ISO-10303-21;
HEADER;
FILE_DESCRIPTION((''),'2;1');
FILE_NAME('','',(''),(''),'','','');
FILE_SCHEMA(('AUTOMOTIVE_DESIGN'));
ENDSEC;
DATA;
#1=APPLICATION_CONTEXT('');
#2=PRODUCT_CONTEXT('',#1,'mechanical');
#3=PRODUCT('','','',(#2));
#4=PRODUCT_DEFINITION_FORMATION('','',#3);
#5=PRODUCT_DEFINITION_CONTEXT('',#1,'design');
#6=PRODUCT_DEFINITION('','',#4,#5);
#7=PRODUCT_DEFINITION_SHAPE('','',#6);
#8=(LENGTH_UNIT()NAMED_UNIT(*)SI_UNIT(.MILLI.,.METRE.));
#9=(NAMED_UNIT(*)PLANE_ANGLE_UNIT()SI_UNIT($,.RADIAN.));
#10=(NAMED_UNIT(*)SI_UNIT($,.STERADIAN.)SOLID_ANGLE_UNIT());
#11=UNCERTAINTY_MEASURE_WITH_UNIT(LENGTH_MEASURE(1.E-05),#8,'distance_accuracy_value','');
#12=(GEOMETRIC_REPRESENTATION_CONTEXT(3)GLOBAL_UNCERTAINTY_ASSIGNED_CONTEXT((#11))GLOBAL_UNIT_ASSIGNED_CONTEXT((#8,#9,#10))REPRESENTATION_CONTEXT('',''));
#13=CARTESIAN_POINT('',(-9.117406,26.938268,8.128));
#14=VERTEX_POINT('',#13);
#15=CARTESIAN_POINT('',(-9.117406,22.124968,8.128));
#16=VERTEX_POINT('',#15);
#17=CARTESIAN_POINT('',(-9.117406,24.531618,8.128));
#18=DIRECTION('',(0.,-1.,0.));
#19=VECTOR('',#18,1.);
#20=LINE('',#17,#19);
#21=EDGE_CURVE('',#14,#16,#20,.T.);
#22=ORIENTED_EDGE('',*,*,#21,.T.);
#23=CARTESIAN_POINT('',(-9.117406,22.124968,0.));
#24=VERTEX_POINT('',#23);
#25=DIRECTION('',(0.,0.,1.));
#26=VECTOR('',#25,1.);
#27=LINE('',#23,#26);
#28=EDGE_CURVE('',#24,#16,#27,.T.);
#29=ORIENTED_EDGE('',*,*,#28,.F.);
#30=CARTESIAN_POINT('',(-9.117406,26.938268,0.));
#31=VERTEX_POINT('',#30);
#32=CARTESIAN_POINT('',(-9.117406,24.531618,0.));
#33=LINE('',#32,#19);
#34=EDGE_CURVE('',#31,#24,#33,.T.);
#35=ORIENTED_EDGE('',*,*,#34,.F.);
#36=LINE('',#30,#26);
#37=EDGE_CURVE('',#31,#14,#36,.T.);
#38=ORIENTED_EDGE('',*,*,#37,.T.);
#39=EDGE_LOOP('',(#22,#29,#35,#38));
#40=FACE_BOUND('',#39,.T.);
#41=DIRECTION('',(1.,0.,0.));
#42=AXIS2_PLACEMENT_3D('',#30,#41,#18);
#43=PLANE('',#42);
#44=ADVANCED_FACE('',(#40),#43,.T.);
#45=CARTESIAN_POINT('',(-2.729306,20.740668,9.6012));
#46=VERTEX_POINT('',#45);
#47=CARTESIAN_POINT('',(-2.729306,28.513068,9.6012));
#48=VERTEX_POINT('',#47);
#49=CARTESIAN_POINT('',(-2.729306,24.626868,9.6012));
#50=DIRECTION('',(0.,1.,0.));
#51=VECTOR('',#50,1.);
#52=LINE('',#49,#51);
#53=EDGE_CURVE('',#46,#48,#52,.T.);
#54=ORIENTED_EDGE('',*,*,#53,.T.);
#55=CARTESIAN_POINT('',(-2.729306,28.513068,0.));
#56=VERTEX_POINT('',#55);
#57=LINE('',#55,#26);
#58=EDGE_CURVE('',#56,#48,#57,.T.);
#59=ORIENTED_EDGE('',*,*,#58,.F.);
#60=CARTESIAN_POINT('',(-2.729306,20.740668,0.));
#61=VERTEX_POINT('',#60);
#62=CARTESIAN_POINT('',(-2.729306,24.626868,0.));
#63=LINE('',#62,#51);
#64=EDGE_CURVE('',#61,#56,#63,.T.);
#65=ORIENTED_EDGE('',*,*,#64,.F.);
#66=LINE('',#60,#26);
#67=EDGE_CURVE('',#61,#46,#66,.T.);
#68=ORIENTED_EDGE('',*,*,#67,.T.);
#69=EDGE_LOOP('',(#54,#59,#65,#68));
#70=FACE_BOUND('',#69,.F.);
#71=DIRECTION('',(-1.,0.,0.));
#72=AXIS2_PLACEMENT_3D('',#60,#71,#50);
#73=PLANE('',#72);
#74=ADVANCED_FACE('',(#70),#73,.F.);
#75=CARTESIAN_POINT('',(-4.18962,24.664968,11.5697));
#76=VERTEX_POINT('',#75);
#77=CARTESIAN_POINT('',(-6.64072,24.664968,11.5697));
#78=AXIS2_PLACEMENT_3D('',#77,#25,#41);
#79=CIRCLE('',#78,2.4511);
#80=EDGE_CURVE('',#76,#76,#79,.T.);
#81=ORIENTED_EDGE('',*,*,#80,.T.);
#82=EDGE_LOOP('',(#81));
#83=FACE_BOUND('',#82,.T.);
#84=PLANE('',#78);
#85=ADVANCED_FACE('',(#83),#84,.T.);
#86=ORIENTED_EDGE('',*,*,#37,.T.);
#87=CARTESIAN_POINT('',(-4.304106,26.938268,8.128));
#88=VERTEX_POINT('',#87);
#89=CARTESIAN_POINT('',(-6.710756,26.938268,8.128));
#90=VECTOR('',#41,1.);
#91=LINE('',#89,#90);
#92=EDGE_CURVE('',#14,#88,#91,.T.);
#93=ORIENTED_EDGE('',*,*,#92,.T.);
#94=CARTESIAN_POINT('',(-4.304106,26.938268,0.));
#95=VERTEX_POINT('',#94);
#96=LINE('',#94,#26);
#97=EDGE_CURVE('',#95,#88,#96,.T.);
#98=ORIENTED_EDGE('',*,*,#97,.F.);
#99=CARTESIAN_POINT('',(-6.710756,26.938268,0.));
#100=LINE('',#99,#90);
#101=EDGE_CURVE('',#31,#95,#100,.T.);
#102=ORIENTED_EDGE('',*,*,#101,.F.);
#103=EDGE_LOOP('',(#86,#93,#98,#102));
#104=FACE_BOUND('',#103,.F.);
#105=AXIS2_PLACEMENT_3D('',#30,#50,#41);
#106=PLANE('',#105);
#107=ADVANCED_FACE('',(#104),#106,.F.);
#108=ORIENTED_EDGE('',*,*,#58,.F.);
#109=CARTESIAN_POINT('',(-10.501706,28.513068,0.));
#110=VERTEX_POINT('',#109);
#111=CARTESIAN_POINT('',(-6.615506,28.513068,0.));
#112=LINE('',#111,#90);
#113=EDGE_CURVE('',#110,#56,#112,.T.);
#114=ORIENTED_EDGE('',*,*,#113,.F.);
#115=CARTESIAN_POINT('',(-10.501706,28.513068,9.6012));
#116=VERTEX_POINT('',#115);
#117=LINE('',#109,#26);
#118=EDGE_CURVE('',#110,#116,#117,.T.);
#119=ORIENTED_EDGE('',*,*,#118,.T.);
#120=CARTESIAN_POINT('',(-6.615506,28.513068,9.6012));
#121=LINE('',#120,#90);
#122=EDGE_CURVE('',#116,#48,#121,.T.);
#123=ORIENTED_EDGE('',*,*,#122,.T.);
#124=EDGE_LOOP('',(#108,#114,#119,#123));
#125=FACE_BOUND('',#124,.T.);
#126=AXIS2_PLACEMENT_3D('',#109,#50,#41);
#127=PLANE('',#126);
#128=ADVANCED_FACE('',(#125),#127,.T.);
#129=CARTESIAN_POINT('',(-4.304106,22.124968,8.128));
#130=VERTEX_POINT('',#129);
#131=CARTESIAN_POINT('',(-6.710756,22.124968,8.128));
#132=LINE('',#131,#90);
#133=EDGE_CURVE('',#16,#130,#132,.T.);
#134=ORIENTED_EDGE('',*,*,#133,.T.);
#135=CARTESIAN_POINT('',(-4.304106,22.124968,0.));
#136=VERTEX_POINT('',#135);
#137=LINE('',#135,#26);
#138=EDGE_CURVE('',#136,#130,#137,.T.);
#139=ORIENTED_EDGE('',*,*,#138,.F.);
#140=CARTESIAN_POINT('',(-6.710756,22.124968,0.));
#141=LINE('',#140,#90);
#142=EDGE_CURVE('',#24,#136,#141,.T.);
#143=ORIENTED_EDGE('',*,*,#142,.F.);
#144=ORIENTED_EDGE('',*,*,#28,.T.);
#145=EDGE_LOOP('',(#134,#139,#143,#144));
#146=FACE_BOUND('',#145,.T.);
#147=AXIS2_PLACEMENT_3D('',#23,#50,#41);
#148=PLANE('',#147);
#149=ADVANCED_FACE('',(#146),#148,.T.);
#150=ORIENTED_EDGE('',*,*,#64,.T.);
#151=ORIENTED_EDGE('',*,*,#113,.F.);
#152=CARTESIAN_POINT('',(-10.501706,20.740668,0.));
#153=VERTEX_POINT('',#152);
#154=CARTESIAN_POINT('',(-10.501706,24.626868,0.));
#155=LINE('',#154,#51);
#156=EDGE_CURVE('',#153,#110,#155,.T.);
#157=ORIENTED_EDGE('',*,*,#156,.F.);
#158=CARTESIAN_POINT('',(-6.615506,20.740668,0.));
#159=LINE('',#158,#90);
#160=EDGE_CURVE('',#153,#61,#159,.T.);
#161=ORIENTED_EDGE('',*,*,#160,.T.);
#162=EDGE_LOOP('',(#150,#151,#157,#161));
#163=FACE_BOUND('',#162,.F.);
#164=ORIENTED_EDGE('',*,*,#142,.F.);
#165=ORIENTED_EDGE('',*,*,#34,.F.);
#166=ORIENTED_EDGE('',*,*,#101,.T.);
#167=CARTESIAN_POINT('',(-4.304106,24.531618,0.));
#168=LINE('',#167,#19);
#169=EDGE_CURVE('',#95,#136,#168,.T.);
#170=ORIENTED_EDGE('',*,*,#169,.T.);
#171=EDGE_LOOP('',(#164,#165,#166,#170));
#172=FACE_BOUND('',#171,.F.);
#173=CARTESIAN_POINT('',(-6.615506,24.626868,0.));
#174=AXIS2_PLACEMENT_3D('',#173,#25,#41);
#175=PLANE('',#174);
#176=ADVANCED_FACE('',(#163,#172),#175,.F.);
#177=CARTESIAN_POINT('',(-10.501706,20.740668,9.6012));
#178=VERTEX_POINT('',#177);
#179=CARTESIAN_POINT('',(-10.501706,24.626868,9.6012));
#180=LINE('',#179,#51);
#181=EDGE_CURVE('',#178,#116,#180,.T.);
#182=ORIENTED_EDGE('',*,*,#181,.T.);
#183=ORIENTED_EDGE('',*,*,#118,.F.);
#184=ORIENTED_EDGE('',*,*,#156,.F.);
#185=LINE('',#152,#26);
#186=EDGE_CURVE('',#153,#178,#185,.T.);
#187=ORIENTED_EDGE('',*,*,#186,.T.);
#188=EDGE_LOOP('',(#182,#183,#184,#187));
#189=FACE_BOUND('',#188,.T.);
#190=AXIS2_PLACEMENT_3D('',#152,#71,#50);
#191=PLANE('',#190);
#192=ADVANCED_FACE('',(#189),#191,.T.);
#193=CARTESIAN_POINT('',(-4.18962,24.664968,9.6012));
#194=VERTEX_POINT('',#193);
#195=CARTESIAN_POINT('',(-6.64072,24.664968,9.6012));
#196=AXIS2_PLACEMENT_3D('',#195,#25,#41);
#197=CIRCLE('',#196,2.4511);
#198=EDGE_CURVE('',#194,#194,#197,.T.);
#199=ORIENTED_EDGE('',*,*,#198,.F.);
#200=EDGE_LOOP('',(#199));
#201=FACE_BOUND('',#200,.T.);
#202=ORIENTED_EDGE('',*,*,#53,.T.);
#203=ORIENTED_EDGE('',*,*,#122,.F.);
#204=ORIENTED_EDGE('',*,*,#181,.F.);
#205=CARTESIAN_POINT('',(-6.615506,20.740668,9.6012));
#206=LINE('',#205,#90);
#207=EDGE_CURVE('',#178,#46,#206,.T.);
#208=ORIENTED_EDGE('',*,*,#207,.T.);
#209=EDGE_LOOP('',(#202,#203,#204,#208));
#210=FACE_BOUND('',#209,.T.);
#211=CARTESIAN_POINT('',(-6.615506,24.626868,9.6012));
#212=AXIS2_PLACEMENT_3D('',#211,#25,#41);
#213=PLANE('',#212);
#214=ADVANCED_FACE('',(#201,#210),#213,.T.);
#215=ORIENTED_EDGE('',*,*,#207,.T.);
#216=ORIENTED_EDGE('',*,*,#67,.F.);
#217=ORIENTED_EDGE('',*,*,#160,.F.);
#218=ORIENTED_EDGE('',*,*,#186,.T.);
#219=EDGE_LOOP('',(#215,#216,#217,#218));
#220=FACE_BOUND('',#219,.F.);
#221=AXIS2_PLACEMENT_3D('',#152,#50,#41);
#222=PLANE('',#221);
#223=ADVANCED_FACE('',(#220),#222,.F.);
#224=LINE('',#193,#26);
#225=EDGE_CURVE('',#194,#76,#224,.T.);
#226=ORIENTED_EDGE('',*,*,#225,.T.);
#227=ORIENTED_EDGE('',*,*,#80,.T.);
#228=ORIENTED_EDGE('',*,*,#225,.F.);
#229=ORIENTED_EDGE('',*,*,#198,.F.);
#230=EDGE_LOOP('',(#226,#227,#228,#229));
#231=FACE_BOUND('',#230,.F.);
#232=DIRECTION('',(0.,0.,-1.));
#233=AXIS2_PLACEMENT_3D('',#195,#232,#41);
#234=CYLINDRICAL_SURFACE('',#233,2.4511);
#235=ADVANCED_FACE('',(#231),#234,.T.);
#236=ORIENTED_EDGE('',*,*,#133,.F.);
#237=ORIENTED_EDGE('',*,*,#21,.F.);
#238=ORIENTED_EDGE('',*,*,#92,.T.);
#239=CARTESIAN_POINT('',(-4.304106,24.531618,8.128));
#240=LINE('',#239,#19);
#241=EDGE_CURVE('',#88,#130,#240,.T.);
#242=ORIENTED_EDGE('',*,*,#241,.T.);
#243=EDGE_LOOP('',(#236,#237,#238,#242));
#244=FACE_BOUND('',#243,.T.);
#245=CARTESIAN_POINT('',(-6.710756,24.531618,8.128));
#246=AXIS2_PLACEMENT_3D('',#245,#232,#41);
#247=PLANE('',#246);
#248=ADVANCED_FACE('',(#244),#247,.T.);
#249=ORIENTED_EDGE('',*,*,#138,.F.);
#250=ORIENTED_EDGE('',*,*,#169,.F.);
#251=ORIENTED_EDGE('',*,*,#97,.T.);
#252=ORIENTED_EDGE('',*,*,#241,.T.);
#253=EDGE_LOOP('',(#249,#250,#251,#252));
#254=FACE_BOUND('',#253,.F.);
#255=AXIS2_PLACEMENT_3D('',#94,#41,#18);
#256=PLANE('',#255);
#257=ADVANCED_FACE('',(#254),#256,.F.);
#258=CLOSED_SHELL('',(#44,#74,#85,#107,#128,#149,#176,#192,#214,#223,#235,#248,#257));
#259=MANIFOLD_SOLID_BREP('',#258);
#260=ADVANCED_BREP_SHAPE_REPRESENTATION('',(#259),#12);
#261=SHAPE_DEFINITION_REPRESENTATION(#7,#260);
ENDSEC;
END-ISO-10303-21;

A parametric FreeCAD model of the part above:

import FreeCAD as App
import Part
import Sketcher
Q = App.Units.Quantity

doc = App.newDocument("Part")
body = doc.addObject("PartDesign::Body", "Body")

sketch1 = body.newObject("Sketcher::SketchObject", "Sketch")
sketch1.AttachmentSupport = (doc.getObject("XY_Plane"), [""])
sketch1.MapMode = "FlatFace"
sketch1.addGeometry(Part.LineSegment(App.Vector(-11, 29, 0), App.Vector(-11, 21, 0)), False)
sketch1.addGeometry(Part.LineSegment(App.Vector(-11, 21, 0), App.Vector(-3, 21, 0)), False)
sketch1.addGeometry(Part.LineSegment(App.Vector(-3, 21, 0), App.Vector(-3, 29, 0)), False)
sketch1.addGeometry(Part.LineSegment(App.Vector(-3, 29, 0), App.Vector(-11, 29, 0)), False)
sketch1.addConstraint(Sketcher.Constraint("Coincident", 0, 2, 1, 1))
sketch1.addConstraint(Sketcher.Constraint("Coincident", 1, 2, 2, 1))
sketch1.addConstraint(Sketcher.Constraint("Coincident", 2, 2, 3, 1))
sketch1.addConstraint(Sketcher.Constraint("Coincident", 3, 2, 0, 1))
sketch1.addConstraint(Sketcher.Constraint("Vertical", 0))
sketch1.addConstraint(Sketcher.Constraint("Horizontal", 1))
sketch1.addConstraint(Sketcher.Constraint("Vertical", 2))
sketch1.addConstraint(Sketcher.Constraint("Horizontal", 3))
sketch1.addConstraint(Sketcher.Constraint("Equal", 3, 0))
sketch1.addConstraint(Sketcher.Constraint("DistanceX", 1, 1, 1, 2, Q("0.306 in")))
sketch1.addConstraint(Sketcher.Constraint("DistanceY", -1, 1, 2, 2, 28.513068))
sketch1.addConstraint(Sketcher.Constraint("DistanceX", 0, 2, -1, 1, 10.501706))
pad1 = body.newObject("PartDesign::Pad", "Pad")
pad1.Profile = sketch1
pad1.Length = Q("0.378 in")

sketch2 = body.newObject("Sketcher::SketchObject", "Sketch001")
sketch2.AttachmentSupport = (doc.getObject("XY_Plane"), [""])
sketch2.MapMode = "FlatFace"
sketch2.AttachmentOffset = App.Placement(App.Vector(0, 0, 0.378 * 25.4), App.Rotation())
sketch2.addGeometry(Part.Circle(App.Vector(-6.6, 24.7, 0), App.Vector(0, 0, 1), 2.5), False)
sketch2.addConstraint(Sketcher.Constraint("Diameter", 0, Q("0.193 in")))
sketch2.addConstraint(Sketcher.Constraint("DistanceX", 0, 3, -1, 1, 6.64072))
sketch2.addConstraint(Sketcher.Constraint("DistanceY", -1, 1, 0, 3, 24.664968))
pad2 = body.newObject("PartDesign::Pad", "Pad001")
pad2.Profile = sketch2
pad2.Length = Q("0.0775 in")

sketch3 = body.newObject("Sketcher::SketchObject", "Sketch002")
sketch3.AttachmentSupport = (doc.getObject("XY_Plane"), [""])
sketch3.MapMode = "FlatFace"
sketch3.addGeometry(Part.LineSegment(App.Vector(-9.1, 22.1, 0), App.Vector(-9.1, 26.9, 0)), False)
sketch3.addGeometry(Part.LineSegment(App.Vector(-9.1, 26.9, 0), App.Vector(-4.3, 26.9, 0)), False)
sketch3.addGeometry(Part.LineSegment(App.Vector(-4.3, 26.9, 0), App.Vector(-4.3, 22.1, 0)), False)
sketch3.addGeometry(Part.LineSegment(App.Vector(-4.3, 22.1, 0), App.Vector(-9.1, 22.1, 0)), False)
sketch3.addConstraint(Sketcher.Constraint("Coincident", 0, 2, 1, 1))
sketch3.addConstraint(Sketcher.Constraint("Coincident", 1, 2, 2, 1))
sketch3.addConstraint(Sketcher.Constraint("Coincident", 2, 2, 3, 1))
sketch3.addConstraint(Sketcher.Constraint("Coincident", 3, 2, 0, 1))
sketch3.addConstraint(Sketcher.Constraint("Vertical", 0))
sketch3.addConstraint(Sketcher.Constraint("Horizontal", 1))
sketch3.addConstraint(Sketcher.Constraint("Vertical", 2))
sketch3.addConstraint(Sketcher.Constraint("Horizontal", 3))
sketch3.addConstraint(Sketcher.Constraint("Equal", 3, 0))
sketch3.addConstraint(Sketcher.Constraint("DistanceX", 1, 1, 1, 2, Q("0.1895 in")))
sketch3.addConstraint(Sketcher.Constraint("DistanceY", -1, 1, 0, 2, 26.938268))
sketch3.addConstraint(Sketcher.Constraint("DistanceX", 0, 2, -1, 1, 9.117406))
pocket1 = body.newObject("PartDesign::Pocket", "Pocket")
pocket1.Profile = sketch3
pocket1.Length = Q("0.32 in")
pocket1.Reversed = True

doc.recompute()
